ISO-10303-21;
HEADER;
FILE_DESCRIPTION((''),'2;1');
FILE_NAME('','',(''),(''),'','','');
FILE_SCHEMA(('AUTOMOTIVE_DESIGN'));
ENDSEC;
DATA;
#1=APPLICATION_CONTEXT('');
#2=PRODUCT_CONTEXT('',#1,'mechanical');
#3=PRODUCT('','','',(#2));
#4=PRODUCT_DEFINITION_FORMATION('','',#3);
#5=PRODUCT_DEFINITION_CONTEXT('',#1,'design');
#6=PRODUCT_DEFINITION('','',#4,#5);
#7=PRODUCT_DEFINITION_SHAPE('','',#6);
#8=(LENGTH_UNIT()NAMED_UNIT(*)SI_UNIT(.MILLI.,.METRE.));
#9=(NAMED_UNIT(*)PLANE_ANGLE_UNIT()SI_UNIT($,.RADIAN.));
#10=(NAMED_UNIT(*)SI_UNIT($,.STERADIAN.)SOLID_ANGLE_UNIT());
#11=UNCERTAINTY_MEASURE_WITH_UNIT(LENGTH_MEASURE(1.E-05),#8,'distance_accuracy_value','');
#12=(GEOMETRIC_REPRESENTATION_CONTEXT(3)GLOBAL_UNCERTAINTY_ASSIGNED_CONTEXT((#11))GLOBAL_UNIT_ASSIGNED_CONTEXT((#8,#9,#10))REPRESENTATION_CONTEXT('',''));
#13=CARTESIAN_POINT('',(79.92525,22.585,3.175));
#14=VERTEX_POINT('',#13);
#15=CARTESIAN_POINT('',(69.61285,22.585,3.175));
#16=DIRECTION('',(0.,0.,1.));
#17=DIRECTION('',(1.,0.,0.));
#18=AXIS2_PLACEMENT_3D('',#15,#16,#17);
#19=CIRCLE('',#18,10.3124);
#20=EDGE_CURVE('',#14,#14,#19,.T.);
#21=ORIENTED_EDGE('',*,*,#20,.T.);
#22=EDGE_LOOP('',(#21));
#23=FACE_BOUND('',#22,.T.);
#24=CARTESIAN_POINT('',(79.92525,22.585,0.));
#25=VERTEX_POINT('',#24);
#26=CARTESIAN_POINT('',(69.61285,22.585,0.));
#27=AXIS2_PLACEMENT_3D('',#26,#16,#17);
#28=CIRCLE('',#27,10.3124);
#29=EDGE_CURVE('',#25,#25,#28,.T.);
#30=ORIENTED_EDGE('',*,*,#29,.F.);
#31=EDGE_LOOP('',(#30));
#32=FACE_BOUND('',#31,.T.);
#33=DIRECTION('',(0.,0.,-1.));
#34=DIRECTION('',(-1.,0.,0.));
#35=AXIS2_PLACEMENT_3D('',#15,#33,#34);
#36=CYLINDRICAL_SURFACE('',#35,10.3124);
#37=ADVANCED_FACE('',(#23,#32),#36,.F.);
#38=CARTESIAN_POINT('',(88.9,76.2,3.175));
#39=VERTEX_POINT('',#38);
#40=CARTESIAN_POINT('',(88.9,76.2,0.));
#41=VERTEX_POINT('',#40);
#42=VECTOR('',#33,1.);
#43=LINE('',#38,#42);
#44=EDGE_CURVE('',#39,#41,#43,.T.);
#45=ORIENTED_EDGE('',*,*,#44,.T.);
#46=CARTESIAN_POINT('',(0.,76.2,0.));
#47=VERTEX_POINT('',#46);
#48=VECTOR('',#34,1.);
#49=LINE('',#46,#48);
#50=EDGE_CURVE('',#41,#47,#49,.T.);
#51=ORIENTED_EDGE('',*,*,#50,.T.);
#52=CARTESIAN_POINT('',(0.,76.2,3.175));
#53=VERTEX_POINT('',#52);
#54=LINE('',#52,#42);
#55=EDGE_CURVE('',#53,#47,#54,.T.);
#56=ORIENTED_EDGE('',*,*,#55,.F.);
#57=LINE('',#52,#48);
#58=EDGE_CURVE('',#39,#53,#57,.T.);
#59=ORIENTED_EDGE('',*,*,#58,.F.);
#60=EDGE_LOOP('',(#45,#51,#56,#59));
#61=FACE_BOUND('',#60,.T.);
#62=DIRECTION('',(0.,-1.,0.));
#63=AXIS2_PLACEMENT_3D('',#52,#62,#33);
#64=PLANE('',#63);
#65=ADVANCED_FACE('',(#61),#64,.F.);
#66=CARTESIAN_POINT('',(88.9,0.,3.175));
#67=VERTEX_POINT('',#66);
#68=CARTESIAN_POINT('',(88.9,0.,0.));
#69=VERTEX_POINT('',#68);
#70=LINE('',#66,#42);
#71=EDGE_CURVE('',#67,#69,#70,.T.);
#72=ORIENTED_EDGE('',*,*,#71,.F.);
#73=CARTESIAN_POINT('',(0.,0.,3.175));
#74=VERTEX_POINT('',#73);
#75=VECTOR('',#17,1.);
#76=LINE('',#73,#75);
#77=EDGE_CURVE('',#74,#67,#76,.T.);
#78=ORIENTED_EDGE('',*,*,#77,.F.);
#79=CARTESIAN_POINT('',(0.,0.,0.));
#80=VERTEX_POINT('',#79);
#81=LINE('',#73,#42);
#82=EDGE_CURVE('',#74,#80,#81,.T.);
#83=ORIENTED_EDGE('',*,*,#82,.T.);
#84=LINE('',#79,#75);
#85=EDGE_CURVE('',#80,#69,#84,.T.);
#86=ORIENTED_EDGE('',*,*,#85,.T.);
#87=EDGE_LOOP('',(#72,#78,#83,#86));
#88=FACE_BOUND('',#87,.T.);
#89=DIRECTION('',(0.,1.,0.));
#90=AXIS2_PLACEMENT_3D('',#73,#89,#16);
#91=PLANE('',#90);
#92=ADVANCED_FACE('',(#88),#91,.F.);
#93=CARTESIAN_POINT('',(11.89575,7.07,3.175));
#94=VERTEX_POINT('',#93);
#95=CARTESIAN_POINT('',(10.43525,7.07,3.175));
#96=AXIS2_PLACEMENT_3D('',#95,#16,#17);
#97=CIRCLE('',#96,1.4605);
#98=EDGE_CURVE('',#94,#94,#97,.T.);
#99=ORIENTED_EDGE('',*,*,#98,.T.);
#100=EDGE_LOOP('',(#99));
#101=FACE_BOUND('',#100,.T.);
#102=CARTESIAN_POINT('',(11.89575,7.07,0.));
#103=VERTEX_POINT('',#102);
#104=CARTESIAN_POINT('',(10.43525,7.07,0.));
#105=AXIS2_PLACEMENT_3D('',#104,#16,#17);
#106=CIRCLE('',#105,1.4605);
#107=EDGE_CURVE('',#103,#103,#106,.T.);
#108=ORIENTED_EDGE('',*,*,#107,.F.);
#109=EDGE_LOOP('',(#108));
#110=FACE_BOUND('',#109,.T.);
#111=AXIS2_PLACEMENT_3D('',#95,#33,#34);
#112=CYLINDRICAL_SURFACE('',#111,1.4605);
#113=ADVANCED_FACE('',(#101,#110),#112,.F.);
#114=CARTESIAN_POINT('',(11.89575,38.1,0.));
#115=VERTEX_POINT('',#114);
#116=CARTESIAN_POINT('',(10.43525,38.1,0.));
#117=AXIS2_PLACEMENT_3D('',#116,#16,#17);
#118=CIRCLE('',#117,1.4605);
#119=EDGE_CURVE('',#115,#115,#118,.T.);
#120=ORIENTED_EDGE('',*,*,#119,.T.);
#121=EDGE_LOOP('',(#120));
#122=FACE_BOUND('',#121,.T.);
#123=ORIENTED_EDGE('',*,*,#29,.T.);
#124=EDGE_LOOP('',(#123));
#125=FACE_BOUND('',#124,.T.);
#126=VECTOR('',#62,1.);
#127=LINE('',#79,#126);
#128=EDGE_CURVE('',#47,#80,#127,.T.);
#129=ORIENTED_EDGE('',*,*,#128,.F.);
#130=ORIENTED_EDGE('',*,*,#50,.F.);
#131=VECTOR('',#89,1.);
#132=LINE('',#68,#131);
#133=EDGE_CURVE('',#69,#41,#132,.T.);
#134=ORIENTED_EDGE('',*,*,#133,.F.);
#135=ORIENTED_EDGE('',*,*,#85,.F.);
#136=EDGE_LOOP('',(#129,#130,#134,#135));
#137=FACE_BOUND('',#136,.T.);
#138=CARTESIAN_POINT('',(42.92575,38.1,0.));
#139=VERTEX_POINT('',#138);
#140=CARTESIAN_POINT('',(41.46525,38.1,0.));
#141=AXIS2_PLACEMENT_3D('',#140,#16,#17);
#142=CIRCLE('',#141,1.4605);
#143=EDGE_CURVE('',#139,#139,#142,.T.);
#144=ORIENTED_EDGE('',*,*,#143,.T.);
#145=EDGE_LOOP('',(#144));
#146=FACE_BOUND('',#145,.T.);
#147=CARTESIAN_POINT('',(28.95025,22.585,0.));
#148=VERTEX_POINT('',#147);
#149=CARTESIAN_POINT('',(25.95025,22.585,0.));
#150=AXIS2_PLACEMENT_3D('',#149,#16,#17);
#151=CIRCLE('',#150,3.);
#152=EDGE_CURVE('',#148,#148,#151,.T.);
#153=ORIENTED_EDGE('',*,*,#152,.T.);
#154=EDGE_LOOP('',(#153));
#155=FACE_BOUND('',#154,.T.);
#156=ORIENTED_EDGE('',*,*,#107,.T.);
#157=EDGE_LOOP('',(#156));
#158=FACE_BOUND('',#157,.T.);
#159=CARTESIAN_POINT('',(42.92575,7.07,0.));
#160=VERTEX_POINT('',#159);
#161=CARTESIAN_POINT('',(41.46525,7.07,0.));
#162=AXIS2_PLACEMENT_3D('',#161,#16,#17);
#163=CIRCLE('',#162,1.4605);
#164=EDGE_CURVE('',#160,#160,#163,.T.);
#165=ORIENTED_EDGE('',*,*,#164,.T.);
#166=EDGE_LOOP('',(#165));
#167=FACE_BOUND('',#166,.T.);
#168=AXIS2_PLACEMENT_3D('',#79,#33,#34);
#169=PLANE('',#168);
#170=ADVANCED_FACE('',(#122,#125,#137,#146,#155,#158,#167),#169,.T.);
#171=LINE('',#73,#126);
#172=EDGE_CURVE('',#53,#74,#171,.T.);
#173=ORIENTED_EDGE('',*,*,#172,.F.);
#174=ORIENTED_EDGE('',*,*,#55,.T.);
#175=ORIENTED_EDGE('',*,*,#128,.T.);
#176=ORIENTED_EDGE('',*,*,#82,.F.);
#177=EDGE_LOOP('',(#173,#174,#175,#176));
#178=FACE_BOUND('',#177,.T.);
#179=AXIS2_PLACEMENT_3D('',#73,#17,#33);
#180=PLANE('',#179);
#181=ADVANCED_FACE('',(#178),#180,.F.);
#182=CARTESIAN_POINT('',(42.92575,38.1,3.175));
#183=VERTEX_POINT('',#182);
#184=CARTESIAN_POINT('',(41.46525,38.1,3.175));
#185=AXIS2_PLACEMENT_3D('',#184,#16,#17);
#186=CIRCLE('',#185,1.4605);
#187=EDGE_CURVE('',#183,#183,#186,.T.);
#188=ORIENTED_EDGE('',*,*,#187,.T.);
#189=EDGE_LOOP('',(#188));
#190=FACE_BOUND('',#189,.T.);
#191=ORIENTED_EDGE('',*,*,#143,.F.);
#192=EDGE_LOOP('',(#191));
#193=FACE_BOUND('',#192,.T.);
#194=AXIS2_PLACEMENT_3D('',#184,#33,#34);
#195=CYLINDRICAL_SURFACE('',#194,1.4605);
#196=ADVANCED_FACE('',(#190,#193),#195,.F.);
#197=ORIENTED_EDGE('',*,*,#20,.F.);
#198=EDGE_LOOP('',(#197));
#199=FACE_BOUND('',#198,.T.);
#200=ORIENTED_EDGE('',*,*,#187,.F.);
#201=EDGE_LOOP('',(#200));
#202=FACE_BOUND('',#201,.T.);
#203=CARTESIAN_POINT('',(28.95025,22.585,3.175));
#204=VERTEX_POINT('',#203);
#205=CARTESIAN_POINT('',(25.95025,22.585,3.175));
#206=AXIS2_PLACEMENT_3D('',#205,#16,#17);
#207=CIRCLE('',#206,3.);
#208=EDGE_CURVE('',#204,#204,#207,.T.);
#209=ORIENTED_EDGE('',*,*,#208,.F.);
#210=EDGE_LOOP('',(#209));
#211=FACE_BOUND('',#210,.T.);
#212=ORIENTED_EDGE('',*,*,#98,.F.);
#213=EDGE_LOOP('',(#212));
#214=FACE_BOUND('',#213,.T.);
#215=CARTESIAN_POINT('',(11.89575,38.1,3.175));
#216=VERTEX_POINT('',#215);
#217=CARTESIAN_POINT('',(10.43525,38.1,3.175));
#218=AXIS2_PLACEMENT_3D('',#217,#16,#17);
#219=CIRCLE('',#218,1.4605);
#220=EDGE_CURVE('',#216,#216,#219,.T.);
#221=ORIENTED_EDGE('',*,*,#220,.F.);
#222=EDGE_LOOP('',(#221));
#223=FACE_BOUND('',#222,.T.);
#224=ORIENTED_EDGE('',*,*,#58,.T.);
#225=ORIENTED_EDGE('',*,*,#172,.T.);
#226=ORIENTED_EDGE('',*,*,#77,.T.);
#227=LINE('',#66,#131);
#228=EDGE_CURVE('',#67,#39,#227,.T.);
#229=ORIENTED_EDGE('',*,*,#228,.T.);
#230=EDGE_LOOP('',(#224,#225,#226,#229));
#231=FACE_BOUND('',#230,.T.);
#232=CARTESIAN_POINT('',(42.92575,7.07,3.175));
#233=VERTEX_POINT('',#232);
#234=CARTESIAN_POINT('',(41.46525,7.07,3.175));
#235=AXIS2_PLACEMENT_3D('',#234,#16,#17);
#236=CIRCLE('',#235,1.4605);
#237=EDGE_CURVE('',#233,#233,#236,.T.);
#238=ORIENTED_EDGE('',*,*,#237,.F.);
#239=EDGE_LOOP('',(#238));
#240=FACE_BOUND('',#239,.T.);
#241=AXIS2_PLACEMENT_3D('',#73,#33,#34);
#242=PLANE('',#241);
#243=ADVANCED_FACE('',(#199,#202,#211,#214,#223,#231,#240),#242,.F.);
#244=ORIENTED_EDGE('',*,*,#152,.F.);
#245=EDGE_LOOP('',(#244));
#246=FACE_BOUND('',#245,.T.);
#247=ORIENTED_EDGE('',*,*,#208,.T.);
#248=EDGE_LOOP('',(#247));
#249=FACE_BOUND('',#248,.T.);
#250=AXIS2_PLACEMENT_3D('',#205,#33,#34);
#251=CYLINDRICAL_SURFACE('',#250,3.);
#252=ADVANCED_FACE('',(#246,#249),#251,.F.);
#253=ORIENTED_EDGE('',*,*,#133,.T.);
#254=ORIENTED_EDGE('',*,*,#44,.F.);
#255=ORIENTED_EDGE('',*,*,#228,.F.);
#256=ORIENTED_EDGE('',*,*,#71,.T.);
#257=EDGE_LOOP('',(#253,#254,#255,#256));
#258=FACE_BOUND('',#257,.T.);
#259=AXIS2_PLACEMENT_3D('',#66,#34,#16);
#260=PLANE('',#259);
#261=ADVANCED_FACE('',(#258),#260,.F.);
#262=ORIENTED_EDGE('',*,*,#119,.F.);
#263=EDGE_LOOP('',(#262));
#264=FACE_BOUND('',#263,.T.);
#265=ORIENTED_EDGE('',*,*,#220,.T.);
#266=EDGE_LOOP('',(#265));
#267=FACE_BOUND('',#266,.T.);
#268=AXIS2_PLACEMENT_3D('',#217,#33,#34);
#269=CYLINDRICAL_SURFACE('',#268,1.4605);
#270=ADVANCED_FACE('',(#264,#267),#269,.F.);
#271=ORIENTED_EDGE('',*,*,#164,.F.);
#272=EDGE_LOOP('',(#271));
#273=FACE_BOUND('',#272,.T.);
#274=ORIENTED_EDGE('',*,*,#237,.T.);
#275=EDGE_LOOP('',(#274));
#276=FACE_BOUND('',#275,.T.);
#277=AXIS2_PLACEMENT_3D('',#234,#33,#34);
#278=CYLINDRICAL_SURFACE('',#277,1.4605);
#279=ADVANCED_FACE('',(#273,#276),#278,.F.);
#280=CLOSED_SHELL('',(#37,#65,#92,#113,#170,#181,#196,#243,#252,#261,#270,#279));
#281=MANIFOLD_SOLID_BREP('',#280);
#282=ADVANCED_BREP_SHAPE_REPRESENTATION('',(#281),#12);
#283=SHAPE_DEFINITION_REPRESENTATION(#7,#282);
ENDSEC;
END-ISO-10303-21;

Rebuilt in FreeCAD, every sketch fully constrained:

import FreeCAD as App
import Part
import Sketcher
from FreeCAD import Vector
Q = App.Units.Quantity


def add_polygon(sketch, points):
    """Adds a closed chain of lines whose ends are joined by coincident constraints."""
    first, n = sketch.GeometryCount, len(points)
    for a, b in zip(points, points[1:] + points[:1]):
        sketch.addGeometry(Part.LineSegment(App.Vector(*a, 0), App.Vector(*b, 0)), False)
    for i in range(n):
        sketch.addConstraint(Sketcher.Constraint("Coincident", first + i, 2, first + (i + 1) % n, 1))

doc = App.newDocument("Part")
body = doc.addObject("PartDesign::Body", "Body")

sketch1 = body.newObject("Sketcher::SketchObject", "Sketch")
sketch1.AttachmentSupport = (doc.getObject("XY_Plane"), [""])
sketch1.MapMode = "FlatFace"
add_polygon(sketch1, [(0, 76.2), (0, 0), (88.9, 0), (88.9, 76.2)])
sketch1.addGeometry(Part.Circle(Vector(10.4, 7.1, 0), Vector(0, 0, 1), 1.5), False)
sketch1.addGeometry(Part.Circle(Vector(41.5, 7.1, 0), Vector(0, 0, 1), 1.5), False)
sketch1.addGeometry(Part.Circle(Vector(26, 22.6, 0), Vector(0, 0, 1), 3), False)
sketch1.addGeometry(Part.Circle(Vector(10.4, 38.1, 0), Vector(0, 0, 1), 1.5), False)
sketch1.addGeometry(Part.Circle(Vector(41.5, 38.1, 0), Vector(0, 0, 1), 1.5), False)
sketch1.addGeometry(Part.Circle(Vector(69.6, 22.6, 0), Vector(0, 0, 1), 10.3), False)
sketch1.addConstraint(Sketcher.Constraint("Vertical", 0))
sketch1.addConstraint(Sketcher.Constraint("Horizontal", 1))
sketch1.addConstraint(Sketcher.Constraint("Vertical", 2))
sketch1.addConstraint(Sketcher.Constraint("Horizontal", 3))
sketch1.addConstraint(Sketcher.Constraint("Coincident", 0, 2, -1, 1))
sketch1.addConstraint(Sketcher.Constraint("Equal", 4, 5))
sketch1.addConstraint(Sketcher.Constraint("Equal", 5, 7))
sketch1.addConstraint(Sketcher.Constraint("Equal", 7, 8))
sketch1.addConstraint(Sketcher.Constraint("Horizontal", 4, 3, 5, 3))
sketch1.addConstraint(Sketcher.Constraint("Horizontal", 7, 3, 8, 3))
sketch1.addConstraint(Sketcher.Constraint("Horizontal", 6, 3, 9, 3))
sketch1.addConstraint(Sketcher.Constraint("Vertical", 4, 3, 7, 3))
sketch1.addConstraint(Sketcher.Constraint("Vertical", 5, 3, 8, 3))
sketch1.addConstraint(Sketcher.Constraint("DistanceY", 0, 2, 0, 1, Q("3 in")))
sketch1.addConstraint(Sketcher.Constraint("Diameter", 4, Q("0.115 in")))
sketch1.addConstraint(Sketcher.Constraint("Diameter", 9, Q("0.812 in")))
sketch1.addConstraint(Sketcher.Constraint("DistanceX", 1, 1, 1, 2, Q("3.5 in")))
sketch1.addConstraint(Sketcher.Constraint("DistanceY", -1, 1, 7, 3, Q("1.5 in")))
sketch1.addConstraint(Sketcher.Constraint("Diameter", 6, Q("6 mm")))
sketch1.addConstraint(Sketcher.Constraint("DistanceX", 6, 3, 9, 3, Q("1.719 in")))
sketch1.addConstraint(Sketcher.Constraint("DistanceY", -1, 1, 4, 3, Q("7.07 mm")))
sketch1.addConstraint(Sketcher.Constraint("DistanceY", -1, 1, 6, 3, Q("22.585 mm")))
sketch1.addConstraint(Sketcher.Constraint("DistanceX", 4, 3, 5, 3, Q("31.03 mm")))
sketch1.addConstraint(Sketcher.Constraint("DistanceX", 4, 3, 6, 3, Q("15.515 mm")))
sketch1.addConstraint(Sketcher.Constraint("DistanceX", -1, 1, 4, 3, Q("10.43525 mm")))
pad1 = body.newObject("PartDesign::Pad", "Pad")
pad1.Profile = sketch1
pad1.Length = Q("0.125 in")

doc.recompute()
